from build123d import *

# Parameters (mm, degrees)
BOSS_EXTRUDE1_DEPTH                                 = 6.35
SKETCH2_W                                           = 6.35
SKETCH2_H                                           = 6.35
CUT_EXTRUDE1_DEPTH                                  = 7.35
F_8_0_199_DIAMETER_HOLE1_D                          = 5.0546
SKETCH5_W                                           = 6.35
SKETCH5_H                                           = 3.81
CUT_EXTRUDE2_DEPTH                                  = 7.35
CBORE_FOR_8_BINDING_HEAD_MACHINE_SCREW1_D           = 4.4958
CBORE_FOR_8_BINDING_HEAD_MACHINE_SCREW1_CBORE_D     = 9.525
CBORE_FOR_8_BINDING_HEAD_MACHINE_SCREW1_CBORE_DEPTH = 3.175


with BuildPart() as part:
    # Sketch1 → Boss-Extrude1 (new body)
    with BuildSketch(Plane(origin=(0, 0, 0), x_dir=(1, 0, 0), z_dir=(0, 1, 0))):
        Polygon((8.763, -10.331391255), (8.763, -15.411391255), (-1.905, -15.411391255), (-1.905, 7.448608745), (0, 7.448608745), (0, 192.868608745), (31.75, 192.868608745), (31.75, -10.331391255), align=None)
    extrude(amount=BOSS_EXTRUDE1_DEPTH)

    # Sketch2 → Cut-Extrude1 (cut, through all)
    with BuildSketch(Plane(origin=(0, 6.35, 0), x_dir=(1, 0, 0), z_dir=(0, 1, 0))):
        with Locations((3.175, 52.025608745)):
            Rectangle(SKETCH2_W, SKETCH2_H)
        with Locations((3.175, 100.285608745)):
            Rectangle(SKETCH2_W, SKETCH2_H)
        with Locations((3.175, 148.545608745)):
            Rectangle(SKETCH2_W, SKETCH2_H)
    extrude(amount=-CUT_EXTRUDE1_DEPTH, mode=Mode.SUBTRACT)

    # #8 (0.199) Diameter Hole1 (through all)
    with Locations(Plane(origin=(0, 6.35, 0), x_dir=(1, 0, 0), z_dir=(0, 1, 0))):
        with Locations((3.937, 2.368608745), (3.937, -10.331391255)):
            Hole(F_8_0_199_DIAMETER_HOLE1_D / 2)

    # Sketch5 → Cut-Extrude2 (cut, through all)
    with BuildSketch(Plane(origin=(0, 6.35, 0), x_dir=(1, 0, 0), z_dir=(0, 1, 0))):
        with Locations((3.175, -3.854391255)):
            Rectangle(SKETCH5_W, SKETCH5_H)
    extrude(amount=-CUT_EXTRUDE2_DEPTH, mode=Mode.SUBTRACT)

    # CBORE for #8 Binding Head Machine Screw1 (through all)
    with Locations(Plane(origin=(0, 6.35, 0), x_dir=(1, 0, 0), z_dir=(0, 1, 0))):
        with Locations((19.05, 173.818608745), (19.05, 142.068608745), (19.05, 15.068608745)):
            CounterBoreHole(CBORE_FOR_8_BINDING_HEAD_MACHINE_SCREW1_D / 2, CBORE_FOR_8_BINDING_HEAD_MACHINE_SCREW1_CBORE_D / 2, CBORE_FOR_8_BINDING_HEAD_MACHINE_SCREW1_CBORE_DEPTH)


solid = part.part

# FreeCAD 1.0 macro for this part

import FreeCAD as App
import Part
import Sketcher
from FreeCAD import Vector
Q = App.Units.Quantity

doc = App.newDocument("Part")
body = doc.addObject("PartDesign::Body", "Body")

sketch1 = body.newObject("Sketcher::SketchObject", "Sketch")
sketch1.AttachmentSupport = (doc.getObject("XZ_Plane"), [""])
sketch1.MapMode = "FlatFace"
sketch1.addGeometry(Part.LineSegment(Vector(8.8, 15.4, 0), Vector(8.8, 10.3, 0)), False)
sketch1.addGeometry(Part.LineSegment(Vector(8.8, 10.3, 0), Vector(31.8, 10.3, 0)), False)
sketch1.addGeometry(Part.LineSegment(Vector(31.8, 10.3, 0), Vector(31.8, -192.9, 0)), False)
sketch1.addGeometry(Part.LineSegment(Vector(31.8, -192.9, 0), Vector(0, -192.9, 0)), False)
sketch1.addGeometry(Part.LineSegment(Vector(0, -192.9, 0), Vector(0, -7.4, 0)), False)
sketch1.addGeometry(Part.LineSegment(Vector(0, -7.4, 0), Vector(-1.9, -7.4, 0)), False)
sketch1.addGeometry(Part.LineSegment(Vector(-1.9, -7.4, 0), Vector(-1.9, 15.4, 0)), False)
sketch1.addGeometry(Part.LineSegment(Vector(-1.9, 15.4, 0), Vector(8.8, 15.4, 0)), False)
sketch1.addConstraint(Sketcher.Constraint("Coincident", 0, 2, 1, 1))
sketch1.addConstraint(Sketcher.Constraint("Coincident", 1, 2, 2, 1))
sketch1.addConstraint(Sketcher.Constraint("Coincident", 2, 2, 3, 1))
sketch1.addConstraint(Sketcher.Constraint("Coincident", 3, 2, 4, 1))
sketch1.addConstraint(Sketcher.Constraint("Coincident", 4, 2, 5, 1))
sketch1.addConstraint(Sketcher.Constraint("Coincident", 5, 2, 6, 1))
sketch1.addConstraint(Sketcher.Constraint("Coincident", 6, 2, 7, 1))
sketch1.addConstraint(Sketcher.Constraint("Coincident", 7, 2, 0, 1))
sketch1.addConstraint(Sketcher.Constraint("Vertical", 0))
sketch1.addConstraint(Sketcher.Constraint("Horizontal", 1))
sketch1.addConstraint(Sketcher.Constraint("Vertical", 2))
sketch1.addConstraint(Sketcher.Constraint("Horizontal", 3))
sketch1.addConstraint(Sketcher.Constraint("Vertical", 4))
sketch1.addConstraint(Sketcher.Constraint("Horizontal", 5))
sketch1.addConstraint(Sketcher.Constraint("Vertical", 6))
sketch1.addConstraint(Sketcher.Constraint("Horizontal", 7))
sketch1.addConstraint(Sketcher.Constraint("PointOnObject", 3, 2, -2))
sketch1.addConstraint(Sketcher.Constraint("DistanceY", 2, 2, 2, 1, Q("8 in")))
sketch1.addConstraint(Sketcher.Constraint("DistanceY", 0, 2, 0, 1, Q("0.2 in")))
sketch1.addConstraint(Sketcher.Constraint("DistanceY", 4, 1, 4, 2, Q("7.3 in")))
sketch1.addConstraint(Sketcher.Constraint("DistanceX", 3, 2, 3, 1, Q("1.25 in")))
sketch1.addConstraint(Sketcher.Constraint("DistanceX", 7, 1, 7, 2, Q("0.42 in")))
sketch1.addConstraint(Sketcher.Constraint("DistanceX", 1, 1, 1, 2, Q("0.905 in")))
sketch1.addConstraint(Sketcher.Constraint("DistanceY", -1, 1, 0, 2, Q("10.331391 mm")))
pad1 = body.newObject("PartDesign::Pad", "Pad")
pad1.Profile = sketch1
pad1.Length = Q("0.25 in")
pad1.Reversed = True

sketch2 = body.newObject("Sketcher::SketchObject", "Sketch001")
sketch2.AttachmentSupport = (doc.getObject("XZ_Plane"), [""])
sketch2.MapMode = "FlatFace"
sketch2.AttachmentOffset = App.Placement(Vector(0, 0, -0.25 * 25.4), App.Rotation())
sketch2.addGeometry(Part.LineSegment(Vector(0, -55, 0), Vector(0, -49, 0)), False)
sketch2.addGeometry(Part.LineSegment(Vector(0, -49, 0), Vector(6, -49, 0)), False)
sketch2.addGeometry(Part.LineSegment(Vector(6, -49, 0), Vector(6, -55, 0)), False)
sketch2.addGeometry(Part.LineSegment(Vector(6, -55, 0), Vector(0, -55, 0)), False)
sketch2.addGeometry(Part.LineSegment(Vector(0, -103, 0), Vector(0, -97, 0)), False)
sketch2.addGeometry(Part.LineSegment(Vector(0, -97, 0), Vector(6, -97, 0)), False)
sketch2.addGeometry(Part.LineSegment(Vector(6, -97, 0), Vector(6, -103, 0)), False)
sketch2.addGeometry(Part.LineSegment(Vector(6, -103, 0), Vector(0, -103, 0)), False)
sketch2.addGeometry(Part.LineSegment(Vector(0, -152, 0), Vector(0, -145, 0)), False)
sketch2.addGeometry(Part.LineSegment(Vector(0, -145, 0), Vector(6, -145, 0)), False)
sketch2.addGeometry(Part.LineSegment(Vector(6, -145, 0), Vector(6, -152, 0)), False)
sketch2.addGeometry(Part.LineSegment(Vector(6, -152, 0), Vector(0, -152, 0)), False)
sketch2.addConstraint(Sketcher.Constraint("Coincident", 0, 2, 1, 1))
sketch2.addConstraint(Sketcher.Constraint("Coincident", 1, 2, 2, 1))
sketch2.addConstraint(Sketcher.Constraint("Coincident", 2, 2, 3, 1))
sketch2.addConstraint(Sketcher.Constraint("Coincident", 3, 2, 0, 1))
sketch2.addConstraint(Sketcher.Constraint("Coincident", 4, 2, 5, 1))
sketch2.addConstraint(Sketcher.Constraint("Coincident", 5, 2, 6, 1))
sketch2.addConstraint(Sketcher.Constraint("Coincident", 6, 2, 7, 1))
sketch2.addConstraint(Sketcher.Constraint("Coincident", 7, 2, 4, 1))
sketch2.addConstraint(Sketcher.Constraint("Coincident", 8, 2, 9, 1))
sketch2.addConstraint(Sketcher.Constraint("Coincident", 9, 2, 10, 1))
sketch2.addConstraint(Sketcher.Constraint("Coincident", 10, 2, 11, 1))
sketch2.addConstraint(Sketcher.Constraint("Coincident", 11, 2, 8, 1))
sketch2.addConstraint(Sketcher.Constraint("Vertical", 0))
sketch2.addConstraint(Sketcher.Constraint("Horizontal", 1))
sketch2.addConstraint(Sketcher.Constraint("Vertical", 2))
sketch2.addConstraint(Sketcher.Constraint("Horizontal", 3))
sketch2.addConstraint(Sketcher.Constraint("Vertical", 4))
sketch2.addConstraint(Sketcher.Constraint("Horizontal", 5))
sketch2.addConstraint(Sketcher.Constraint("Vertical", 6))
sketch2.addConstraint(Sketcher.Constraint("Horizontal", 7))
sketch2.addConstraint(Sketcher.Constraint("Vertical", 8))
sketch2.addConstraint(Sketcher.Constraint("Horizontal", 9))
sketch2.addConstraint(Sketcher.Constraint("Vertical", 10))
sketch2.addConstraint(Sketcher.Constraint("Horizontal", 11))
sketch2.addConstraint(Sketcher.Constraint("PointOnObject", 0, 2, -2))
sketch2.addConstraint(Sketcher.Constraint("PointOnObject", 4, 2, -2))
sketch2.addConstraint(Sketcher.Constraint("PointOnObject", 8, 2, -2))
sketch2.addConstraint(Sketcher.Constraint("Vertical", 2, 2, 5, 2))
sketch2.addConstraint(Sketcher.Constraint("Vertical", 6, 2, 9, 2))
sketch2.addConstraint(Sketcher.Constraint("Equal", 11, 0))
sketch2.addConstraint(Sketcher.Constraint("Equal", 2, 4))
sketch2.addConstraint(Sketcher.Constraint("Equal", 6, 8))
sketch2.addConstraint(Sketcher.Constraint("DistanceX", 1, 1, 1, 2, Q("0.25 in")))
sketch2.addConstraint(Sketcher.Constraint("DistanceY", 4, 2, 0, 2, Q("1.9 in")))
sketch2.addConstraint(Sketcher.Constraint("DistanceY", 8, 2, 4, 2, Q("1.9 in")))
sketch2.addConstraint(Sketcher.Constraint("DistanceY", 0, 2, -1, 1, Q("48.850609 mm")))
pocket1 = body.newObject("PartDesign::Pocket", "Pocket")
pocket1.Profile = sketch2
pocket1.Type = "ThroughAll"
pocket1.Reversed = True

sketch3 = body.newObject("Sketcher::SketchObject", "Sketch002")
sketch3.AttachmentSupport = (doc.getObject("XZ_Plane"), [""])
sketch3.MapMode = "FlatFace"
sketch3.AttachmentOffset = App.Placement(Vector(0, 0, -0.25 * 25.4), App.Rotation())
sketch3.addGeometry(Part.Circle(Vector(3.9, -2.4, 0), Vector(0, 0, 1), 2.5), False)
sketch3.addGeometry(Part.Circle(Vector(3.9, 10.3, 0), Vector(0, 0, 1), 2.5), False)
sketch3.addConstraint(Sketcher.Constraint("Equal", 0, 1))
sketch3.addConstraint(Sketcher.Constraint("Vertical", 0, 3, 1, 3))
sketch3.addConstraint(Sketcher.Constraint("Diameter", 0, Q("0.199 in")))
sketch3.addConstraint(Sketcher.Constraint("DistanceY", 0, 3, 1, 3, Q("0.5 in")))
sketch3.addConstraint(Sketcher.Constraint("DistanceX", -1, 1, 0, 3, Q("0.155 in")))
sketch3.addConstraint(Sketcher.Constraint("DistanceY", 0, 3, -1, 1, Q("2.368609 mm")))
doc.recompute()
hole = body.newObject("PartDesign::Hole", "Hole")
hole.Profile = sketch3
hole.ThreadType = "None"
hole.Diameter = Q("0.199 in")
hole.DepthType = "ThroughAll"
hole.Reversed = True

sketch4 = body.newObject("Sketcher::SketchObject", "Sketch003")
sketch4.AttachmentSupport = (doc.getObject("XZ_Plane"), [""])
sketch4.MapMode = "FlatFace"
sketch4.AttachmentOffset = App.Placement(Vector(0, 0, -0.25 * 25.4), App.Rotation())
sketch4.addGeometry(Part.LineSegment(Vector(0, 1.9, 0), Vector(0, 5.8, 0)), False)
sketch4.addGeometry(Part.LineSegment(Vector(0, 5.8, 0), Vector(6.3, 5.8, 0)), False)
sketch4.addGeometry(Part.LineSegment(Vector(6.3, 5.8, 0), Vector(6.3, 1.9, 0)), False)
sketch4.addGeometry(Part.LineSegment(Vector(6.3, 1.9, 0), Vector(0, 1.9, 0)), False)
sketch4.addConstraint(Sketcher.Constraint("Coincident", 0, 2, 1, 1))
sketch4.addConstraint(Sketcher.Constraint("Coincident", 1, 2, 2, 1))
sketch4.addConstraint(Sketcher.Constraint("Coincident", 2, 2, 3, 1))
sketch4.addConstraint(Sketcher.Constraint("Coincident", 3, 2, 0, 1))
sketch4.addConstraint(Sketcher.Constraint("Vertical", 0))
sketch4.addConstraint(Sketcher.Constraint("Horizontal", 1))
sketch4.addConstraint(Sketcher.Constraint("Vertical", 2))
sketch4.addConstraint(Sketcher.Constraint("Horizontal", 3))
sketch4.addConstraint(Sketcher.Constraint("PointOnObject", 0, 2, -2))
sketch4.addConstraint(Sketcher.Constraint("DistanceX", 1, 1, 1, 2, Q("0.25 in")))
sketch4.addConstraint(Sketcher.Constraint("DistanceY", 0, 1, 0, 2, Q("0.15 in")))
sketch4.addConstraint(Sketcher.Constraint("DistanceY", -1, 1, 0, 2, Q("5.759391 mm")))
pocket2 = body.newObject("PartDesign::Pocket", "Pocket001")
pocket2.Profile = sketch4
pocket2.Type = "ThroughAll"
pocket2.Reversed = True

sketch5 = body.newObject("Sketcher::SketchObject", "Sketch004")
sketch5.AttachmentSupport = (doc.getObject("XZ_Plane"), [""])
sketch5.MapMode = "FlatFace"
sketch5.AttachmentOffset = App.Placement(Vector(0, 0, -0.25 * 25.4), App.Rotation())
sketch5.addGeometry(Part.Circle(Vector(19.1, -173.8, 0), Vector(0, 0, 1), 2.2), False)
sketch5.addGeometry(Part.Circle(Vector(19.1, -142.1, 0), Vector(0, 0, 1), 2.2), False)
sketch5.addGeometry(Part.Circle(Vector(19.1, -15.1, 0), Vector(0, 0, 1), 2.2), False)
sketch5.addConstraint(Sketcher.Constraint("Equal", 0, 1))
sketch5.addConstraint(Sketcher.Constraint("Equal", 1, 2))
sketch5.addConstraint(Sketcher.Constraint("Vertical", 0, 3, 1, 3))
sketch5.addConstraint(Sketcher.Constraint("Vertical", 1, 3, 2, 3))
sketch5.addConstraint(Sketcher.Constraint("Diameter", 0, Q("0.177 in")))
sketch5.addConstraint(Sketcher.Constraint("DistanceY", 1, 3, 2, 3, Q("5 in")))
sketch5.addConstraint(Sketcher.Constraint("DistanceX", -1, 1, 0, 3, Q("0.75 in")))
sketch5.addConstraint(Sketcher.Constraint("DistanceY", 0, 3, 1, 3, Q("1.25 in")))
sketch5.addConstraint(Sketcher.Constraint("DistanceY", 0, 3, -1, 1, Q("173.818609 mm")))
doc.recompute()
hole2 = body.newObject("PartDesign::Hole", "Hole001")
hole2.Profile = sketch5
hole2.ThreadType = "None"
hole2.Diameter = Q("0.177 in")
hole2.DepthType = "ThroughAll"
hole2.HoleCutType = "Counterbore"
hole2.HoleCutDiameter = Q("0.375 in")
hole2.HoleCutDepth = Q("0.125 in")
hole2.Reversed = True

doc.recompute()
